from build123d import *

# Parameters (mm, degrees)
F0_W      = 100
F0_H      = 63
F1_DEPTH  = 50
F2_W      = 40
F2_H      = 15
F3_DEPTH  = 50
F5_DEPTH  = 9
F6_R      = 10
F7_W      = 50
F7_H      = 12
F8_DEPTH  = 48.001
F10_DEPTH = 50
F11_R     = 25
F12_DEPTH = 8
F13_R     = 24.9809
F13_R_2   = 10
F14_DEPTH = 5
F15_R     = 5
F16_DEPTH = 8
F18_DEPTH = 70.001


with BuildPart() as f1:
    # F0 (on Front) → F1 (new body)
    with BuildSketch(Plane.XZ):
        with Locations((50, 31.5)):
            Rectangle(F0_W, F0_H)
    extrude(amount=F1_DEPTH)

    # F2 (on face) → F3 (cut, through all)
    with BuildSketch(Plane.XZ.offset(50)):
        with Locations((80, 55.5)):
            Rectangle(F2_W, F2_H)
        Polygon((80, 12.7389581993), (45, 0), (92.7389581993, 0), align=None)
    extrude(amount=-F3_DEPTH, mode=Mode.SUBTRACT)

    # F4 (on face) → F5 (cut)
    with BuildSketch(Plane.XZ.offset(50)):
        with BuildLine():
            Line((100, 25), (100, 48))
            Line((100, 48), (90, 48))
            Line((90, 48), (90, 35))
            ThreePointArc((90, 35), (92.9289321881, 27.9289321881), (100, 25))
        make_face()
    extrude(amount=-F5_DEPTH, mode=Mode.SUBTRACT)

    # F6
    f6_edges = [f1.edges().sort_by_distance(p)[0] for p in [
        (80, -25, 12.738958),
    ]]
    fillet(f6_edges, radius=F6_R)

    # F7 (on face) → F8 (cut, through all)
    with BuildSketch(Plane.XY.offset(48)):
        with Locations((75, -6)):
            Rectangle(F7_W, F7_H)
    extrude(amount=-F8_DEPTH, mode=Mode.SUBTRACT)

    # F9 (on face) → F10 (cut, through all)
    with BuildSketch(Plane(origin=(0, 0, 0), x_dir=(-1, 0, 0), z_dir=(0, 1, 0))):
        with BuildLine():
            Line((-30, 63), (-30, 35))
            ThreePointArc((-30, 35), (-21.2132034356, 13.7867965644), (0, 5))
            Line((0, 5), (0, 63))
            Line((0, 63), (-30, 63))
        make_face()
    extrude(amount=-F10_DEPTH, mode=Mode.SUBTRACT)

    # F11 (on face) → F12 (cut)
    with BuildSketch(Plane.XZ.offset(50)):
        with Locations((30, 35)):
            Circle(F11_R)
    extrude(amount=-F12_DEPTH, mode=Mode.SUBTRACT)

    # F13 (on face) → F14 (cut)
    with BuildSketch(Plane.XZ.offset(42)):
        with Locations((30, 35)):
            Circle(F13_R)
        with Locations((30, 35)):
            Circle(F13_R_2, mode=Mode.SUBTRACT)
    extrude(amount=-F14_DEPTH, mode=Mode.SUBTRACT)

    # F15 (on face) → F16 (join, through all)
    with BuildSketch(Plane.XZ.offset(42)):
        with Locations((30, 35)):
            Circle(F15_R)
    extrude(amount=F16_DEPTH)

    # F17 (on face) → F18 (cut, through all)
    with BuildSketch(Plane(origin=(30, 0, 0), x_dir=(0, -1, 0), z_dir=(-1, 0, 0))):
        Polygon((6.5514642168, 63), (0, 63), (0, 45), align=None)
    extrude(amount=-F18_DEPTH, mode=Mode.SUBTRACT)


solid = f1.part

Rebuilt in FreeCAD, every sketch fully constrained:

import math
import FreeCAD as App
import Part
import Sketcher

V = App.Vector
Q = App.Units.Quantity


def edges_at(feature, points):
    """Names of the edges that pass closest to the given points."""
    edges = feature.Shape.Edges
    near = lambda p: min(range(len(edges)), key=lambda i: edges[i].distToShape(Part.Vertex(*p))[0])
    return sorted({f"Edge{near(p) + 1}" for p in points})

doc = App.newDocument("Part")
body = doc.addObject("PartDesign::Body", "Body")

sketch1 = body.newObject("Sketcher::SketchObject", "Sketch")
sketch1.AttachmentSupport = (doc.getObject("XZ_Plane"), [""])
sketch1.MapMode = "FlatFace"
sketch1.addGeometry(Part.LineSegment(V(0, 63, 0), V(0, 0, 0)), False)
sketch1.addGeometry(Part.LineSegment(V(0, 0, 0), V(100, 0, 0)), False)
sketch1.addGeometry(Part.LineSegment(V(100, 0, 0), V(100, 63, 0)), False)
sketch1.addGeometry(Part.LineSegment(V(100, 63, 0), V(0, 63, 0)), False)
sketch1.addConstraint(Sketcher.Constraint("Coincident", 0, 2, 1, 1))
sketch1.addConstraint(Sketcher.Constraint("Coincident", 1, 2, 2, 1))
sketch1.addConstraint(Sketcher.Constraint("Coincident", 2, 2, 3, 1))
sketch1.addConstraint(Sketcher.Constraint("Coincident", 3, 2, 0, 1))
sketch1.addConstraint(Sketcher.Constraint("Vertical", 0))
sketch1.addConstraint(Sketcher.Constraint("Horizontal", 1))
sketch1.addConstraint(Sketcher.Constraint("Vertical", 2))
sketch1.addConstraint(Sketcher.Constraint("Horizontal", 3))
sketch1.addConstraint(Sketcher.Constraint("Coincident", 0, 2, -1, 1))
sketch1.addConstraint(Sketcher.Constraint("DistanceX", 1, 1, 1, 2, Q("100 mm")))
sketch1.addConstraint(Sketcher.Constraint("DistanceY", 0, 2, 0, 1, Q("63 mm")))
pad1 = body.newObject("PartDesign::Pad", "Pad")
pad1.Profile = sketch1
pad1.Length = 50

sketch2 = body.newObject("Sketcher::SketchObject", "Sketch001")
sketch2.AttachmentSupport = (doc.getObject("XZ_Plane"), [""])
sketch2.MapMode = "FlatFace"
sketch2.AttachmentOffset = App.Placement(V(0, 0, 50), App.Rotation())
sketch2.addGeometry(Part.LineSegment(V(60, 63, 0), V(60, 48, 0)), False)
sketch2.addGeometry(Part.LineSegment(V(60, 48, 0), V(100, 48, 0)), False)
sketch2.addGeometry(Part.LineSegment(V(100, 48, 0), V(100, 63, 0)), False)
sketch2.addGeometry(Part.LineSegment(V(100, 63, 0), V(60, 63, 0)), False)
sketch2.addGeometry(Part.LineSegment(V(80, 13, 0), V(45, 0, 0)), False)
sketch2.addGeometry(Part.LineSegment(V(45, 0, 0), V(93, 0, 0)), False)
sketch2.addGeometry(Part.LineSegment(V(93, 0, 0), V(80, 13, 0)), False)
sketch2.addConstraint(Sketcher.Constraint("Coincident", 0, 2, 1, 1))
sketch2.addConstraint(Sketcher.Constraint("Coincident", 1, 2, 2, 1))
sketch2.addConstraint(Sketcher.Constraint("Coincident", 2, 2, 3, 1))
sketch2.addConstraint(Sketcher.Constraint("Coincident", 3, 2, 0, 1))
sketch2.addConstraint(Sketcher.Constraint("Coincident", 4, 2, 5, 1))
sketch2.addConstraint(Sketcher.Constraint("Coincident", 5, 2, 6, 1))
sketch2.addConstraint(Sketcher.Constraint("Coincident", 6, 2, 4, 1))
sketch2.addConstraint(Sketcher.Constraint("Vertical", 0))
sketch2.addConstraint(Sketcher.Constraint("Horizontal", 1))
sketch2.addConstraint(Sketcher.Constraint("Vertical", 2))
sketch2.addConstraint(Sketcher.Constraint("Horizontal", 3))
sketch2.addConstraint(Sketcher.Constraint("Horizontal", 5))
sketch2.addConstraint(Sketcher.Constraint("PointOnObject", 4, 2, -1))
sketch2.addConstraint(Sketcher.Constraint("DistanceX", 1, 1, 1, 2, Q("40 mm")))
sketch2.addConstraint(Sketcher.Constraint("DistanceY", 0, 2, 0, 1, Q("15 mm")))
sketch2.addConstraint(Sketcher.Constraint("Angle", 4, Q("-160 deg")))
sketch2.addConstraint(Sketcher.Constraint("Angle", 6, Q("135 deg")))
sketch2.addConstraint(Sketcher.Constraint("DistanceX", -1, 1, 0, 2, Q("60 mm")))
sketch2.addConstraint(Sketcher.Constraint("DistanceY", -1, 1, 0, 2, Q("48 mm")))
sketch2.addConstraint(Sketcher.Constraint("DistanceX", -1, 1, 4, 2, Q("45 mm")))
sketch2.addConstraint(Sketcher.Constraint("DistanceX", -1, 1, 6, 2, Q("80 mm")))
pocket1 = body.newObject("PartDesign::Pocket", "Pocket")
pocket1.Profile = sketch2
pocket1.Type = "ThroughAll"

sketch3 = body.newObject("Sketcher::SketchObject", "Sketch002")
sketch3.AttachmentSupport = (doc.getObject("XZ_Plane"), [""])
sketch3.MapMode = "FlatFace"
sketch3.AttachmentOffset = App.Placement(V(0, 0, 50), App.Rotation())
sketch3.addGeometry(Part.LineSegment(V(100, 25, 0), V(100, 48, 0)), False)
sketch3.addGeometry(Part.LineSegment(V(100, 48, 0), V(90, 48, 0)), False)
sketch3.addGeometry(Part.LineSegment(V(90, 48, 0), V(90, 35, 0)), False)
sketch3.addGeometry(Part.ArcOfCircle(Part.Circle(V(100, 35, 0), V(0, 0, 1), 10), math.radians(180), math.radians(270)), False)
sketch3.addConstraint(Sketcher.Constraint("Coincident", 0, 2, 1, 1))
sketch3.addConstraint(Sketcher.Constraint("Coincident", 1, 2, 2, 1))
sketch3.addConstraint(Sketcher.Constraint("Tangent", 2, 2, 3, 1))
sketch3.addConstraint(Sketcher.Constraint("Coincident", 3, 2, 0, 1))
sketch3.addConstraint(Sketcher.Constraint("Vertical", 0))
sketch3.addConstraint(Sketcher.Constraint("Horizontal", 1))
sketch3.addConstraint(Sketcher.Constraint("Vertical", 2))
sketch3.addConstraint(Sketcher.Constraint("Vertical", 3, 3, 0, 2))
sketch3.addConstraint(Sketcher.Constraint("Radius", 3, Q("10 mm")))
sketch3.addConstraint(Sketcher.Constraint("DistanceY", 0, 1, 0, 2, Q("23 mm")))
sketch3.addConstraint(Sketcher.Constraint("DistanceX", -1, 1, 3, 3, Q("100 mm")))
sketch3.addConstraint(Sketcher.Constraint("DistanceY", -1, 1, 3, 3, Q("35 mm")))
pocket2 = body.newObject("PartDesign::Pocket", "Pocket001")
pocket2.Profile = sketch3
pocket2.Length = 9
doc.recompute()

fillet = body.newObject("PartDesign::Fillet", "Fillet")
fillet.Base = (pocket2, edges_at(pocket2, [(80, -25, 12.739)]))
fillet.Radius = 10

sketch4 = body.newObject("Sketcher::SketchObject", "Sketch003")
sketch4.AttachmentSupport = (doc.getObject("XY_Plane"), [""])
sketch4.MapMode = "FlatFace"
sketch4.AttachmentOffset = App.Placement(V(0, 0, 48), App.Rotation())
sketch4.addGeometry(Part.LineSegment(V(50, 0, 0), V(50, -12, 0)), False)
sketch4.addGeometry(Part.LineSegment(V(50, -12, 0), V(100, -12, 0)), False)
sketch4.addGeometry(Part.LineSegment(V(100, -12, 0), V(100, 0, 0)), False)
sketch4.addGeometry(Part.LineSegment(V(100, 0, 0), V(50, 0, 0)), False)
sketch4.addConstraint(Sketcher.Constraint("Coincident", 0, 2, 1, 1))
sketch4.addConstraint(Sketcher.Constraint("Coincident", 1, 2, 2, 1))
sketch4.addConstraint(Sketcher.Constraint("Coincident", 2, 2, 3, 1))
sketch4.addConstraint(Sketcher.Constraint("Coincident", 3, 2, 0, 1))
sketch4.addConstraint(Sketcher.Constraint("Vertical", 0))
sketch4.addConstraint(Sketcher.Constraint("Horizontal", 1))
sketch4.addConstraint(Sketcher.Constraint("Vertical", 2))
sketch4.addConstraint(Sketcher.Constraint("Horizontal", 3))
sketch4.addConstraint(Sketcher.Constraint("PointOnObject", 2, 2, -1))
sketch4.addConstraint(Sketcher.Constraint("DistanceX", 1, 1, 1, 2, Q("50 mm")))
sketch4.addConstraint(Sketcher.Constraint("DistanceY", 0, 2, 0, 1, Q("12 mm")))
sketch4.addConstraint(Sketcher.Constraint("DistanceX", -1, 1, 0, 2, Q("50 mm")))
pocket3 = body.newObject("PartDesign::Pocket", "Pocket002")
pocket3.Profile = sketch4
pocket3.Type = "ThroughAll"

sketch5 = body.newObject("Sketcher::SketchObject", "Sketch004")
sketch5.AttachmentSupport = (doc.getObject("XZ_Plane"), [""])
sketch5.MapMode = "FlatFace"
sketch5.addGeometry(Part.LineSegment(V(30, 63, 0), V(30, 35, 0)), False)
sketch5.addGeometry(Part.ArcOfCircle(Part.Circle(V(0, 35, 0), V(0, 0, 1), 30), math.radians(-90), math.radians(0)), False)
sketch5.addGeometry(Part.LineSegment(V(0, 5, 0), V(0, 63, 0)), False)
sketch5.addGeometry(Part.LineSegment(V(0, 63, 0), V(30, 63, 0)), False)
sketch5.addConstraint(Sketcher.Constraint("Tangent", 0, 2, 1, 2))
sketch5.addConstraint(Sketcher.Constraint("Coincident", 1, 1, 2, 1))
sketch5.addConstraint(Sketcher.Constraint("Coincident", 2, 2, 3, 1))
sketch5.addConstraint(Sketcher.Constraint("Coincident", 3, 2, 0, 1))
sketch5.addConstraint(Sketcher.Constraint("Vertical", 0))
sketch5.addConstraint(Sketcher.Constraint("Vertical", 2))
sketch5.addConstraint(Sketcher.Constraint("Horizontal", 3))
sketch5.addConstraint(Sketcher.Constraint("PointOnObject", 1, 3, -2))
sketch5.addConstraint(Sketcher.Constraint("PointOnObject", 1, 1, -2))
sketch5.addConstraint(Sketcher.Constraint("Radius", 1, Q("30 mm")))
sketch5.addConstraint(Sketcher.Constraint("DistanceY", 0, 2, 0, 1, Q("28 mm")))
sketch5.addConstraint(Sketcher.Constraint("DistanceY", -1, 1, 1, 3, Q("35 mm")))
pocket4 = body.newObject("PartDesign::Pocket", "Pocket003")
pocket4.Profile = sketch5
pocket4.Type = "ThroughAll"
pocket4.Reversed = True

sketch6 = body.newObject("Sketcher::SketchObject", "Sketch005")
sketch6.AttachmentSupport = (doc.getObject("XZ_Plane"), [""])
sketch6.MapMode = "FlatFace"
sketch6.AttachmentOffset = App.Placement(V(0, 0, 50), App.Rotation())
sketch6.addGeometry(Part.Circle(V(30, 35, 0), V(0, 0, 1), 25), False)
sketch6.addConstraint(Sketcher.Constraint("Diameter", 0, Q("50 mm")))
sketch6.addConstraint(Sketcher.Constraint("DistanceX", -1, 1, 0, 3, Q("30 mm")))
sketch6.addConstraint(Sketcher.Constraint("DistanceY", -1, 1, 0, 3, Q("35 mm")))
pocket5 = body.newObject("PartDesign::Pocket", "Pocket004")
pocket5.Profile = sketch6
pocket5.Length = 8

sketch7 = body.newObject("Sketcher::SketchObject", "Sketch006")
sketch7.AttachmentSupport = (doc.getObject("XZ_Plane"), [""])
sketch7.MapMode = "FlatFace"
sketch7.AttachmentOffset = App.Placement(V(0, 0, 42), App.Rotation())
sketch7.addGeometry(Part.Circle(V(30, 35, 0), V(0, 0, 1), 25), False)
sketch7.addGeometry(Part.Circle(V(30, 35, 0), V(0, 0, 1), 10), False)
sketch7.addConstraint(Sketcher.Constraint("Coincident", 1, 3, 0, 3))
sketch7.addConstraint(Sketcher.Constraint("Diameter", 1, Q("20 mm")))
sketch7.addConstraint(Sketcher.Constraint("DistanceX", -1, 1, 0, 3, Q("30 mm")))
sketch7.addConstraint(Sketcher.Constraint("DistanceY", -1, 1, 0, 3, Q("35 mm")))
sketch7.addConstraint(Sketcher.Constraint("Diameter", 0, Q("49.9618 mm")))
pocket6 = body.newObject("PartDesign::Pocket", "Pocket005")
pocket6.Profile = sketch7
pocket6.Length = 5

sketch8 = body.newObject("Sketcher::SketchObject", "Sketch007")
sketch8.AttachmentSupport = (doc.getObject("XZ_Plane"), [""])
sketch8.MapMode = "FlatFace"
sketch8.AttachmentOffset = App.Placement(V(0, 0, 42), App.Rotation())
sketch8.addGeometry(Part.Circle(V(30, 35, 0), V(0, 0, 1), 5), False)
sketch8.addConstraint(Sketcher.Constraint("Diameter", 0, Q("10 mm")))
sketch8.addConstraint(Sketcher.Constraint("DistanceX", -1, 1, 0, 3, Q("30 mm")))
sketch8.addConstraint(Sketcher.Constraint("DistanceY", -1, 1, 0, 3, Q("35 mm")))
pad2 = body.newObject("PartDesign::Pad", "Pad001")
pad2.Profile = sketch8
pad2.Length = 8

sketch9 = body.newObject("Sketcher::SketchObject", "Sketch008")
sketch9.AttachmentSupport = (doc.getObject("YZ_Plane"), [""])
sketch9.MapMode = "FlatFace"
sketch9.AttachmentOffset = App.Placement(V(0, 0, 30), App.Rotation())
sketch9.addGeometry(Part.LineSegment(V(-7, 63, 0), V(0, 63, 0)), False)
sketch9.addGeometry(Part.LineSegment(V(0, 63, 0), V(0, 45, 0)), False)
sketch9.addGeometry(Part.LineSegment(V(0, 45, 0), V(-7, 63, 0)), False)
sketch9.addConstraint(Sketcher.Constraint("Coincident", 0, 2, 1, 1))
sketch9.addConstraint(Sketcher.Constraint("Coincident", 1, 2, 2, 1))
sketch9.addConstraint(Sketcher.Constraint("Coincident", 2, 2, 0, 1))
sketch9.addConstraint(Sketcher.Constraint("Horizontal", 0))
sketch9.addConstraint(Sketcher.Constraint("Vertical", 1))
sketch9.addConstraint(Sketcher.Constraint("PointOnObject", 0, 2, -2))
sketch9.addConstraint(Sketcher.Constraint("DistanceY", 1, 2, 1, 1, Q("18 mm")))
sketch9.addConstraint(Sketcher.Constraint("Angle", 2, Q("110 deg")))
sketch9.addConstraint(Sketcher.Constraint("DistanceY", -1, 1, 0, 2, Q("63 mm")))
pocket7 = body.newObject("PartDesign::Pocket", "Pocket006")
pocket7.Profile = sketch9
pocket7.Type = "ThroughAll"
pocket7.Reversed = True

doc.recompute()
